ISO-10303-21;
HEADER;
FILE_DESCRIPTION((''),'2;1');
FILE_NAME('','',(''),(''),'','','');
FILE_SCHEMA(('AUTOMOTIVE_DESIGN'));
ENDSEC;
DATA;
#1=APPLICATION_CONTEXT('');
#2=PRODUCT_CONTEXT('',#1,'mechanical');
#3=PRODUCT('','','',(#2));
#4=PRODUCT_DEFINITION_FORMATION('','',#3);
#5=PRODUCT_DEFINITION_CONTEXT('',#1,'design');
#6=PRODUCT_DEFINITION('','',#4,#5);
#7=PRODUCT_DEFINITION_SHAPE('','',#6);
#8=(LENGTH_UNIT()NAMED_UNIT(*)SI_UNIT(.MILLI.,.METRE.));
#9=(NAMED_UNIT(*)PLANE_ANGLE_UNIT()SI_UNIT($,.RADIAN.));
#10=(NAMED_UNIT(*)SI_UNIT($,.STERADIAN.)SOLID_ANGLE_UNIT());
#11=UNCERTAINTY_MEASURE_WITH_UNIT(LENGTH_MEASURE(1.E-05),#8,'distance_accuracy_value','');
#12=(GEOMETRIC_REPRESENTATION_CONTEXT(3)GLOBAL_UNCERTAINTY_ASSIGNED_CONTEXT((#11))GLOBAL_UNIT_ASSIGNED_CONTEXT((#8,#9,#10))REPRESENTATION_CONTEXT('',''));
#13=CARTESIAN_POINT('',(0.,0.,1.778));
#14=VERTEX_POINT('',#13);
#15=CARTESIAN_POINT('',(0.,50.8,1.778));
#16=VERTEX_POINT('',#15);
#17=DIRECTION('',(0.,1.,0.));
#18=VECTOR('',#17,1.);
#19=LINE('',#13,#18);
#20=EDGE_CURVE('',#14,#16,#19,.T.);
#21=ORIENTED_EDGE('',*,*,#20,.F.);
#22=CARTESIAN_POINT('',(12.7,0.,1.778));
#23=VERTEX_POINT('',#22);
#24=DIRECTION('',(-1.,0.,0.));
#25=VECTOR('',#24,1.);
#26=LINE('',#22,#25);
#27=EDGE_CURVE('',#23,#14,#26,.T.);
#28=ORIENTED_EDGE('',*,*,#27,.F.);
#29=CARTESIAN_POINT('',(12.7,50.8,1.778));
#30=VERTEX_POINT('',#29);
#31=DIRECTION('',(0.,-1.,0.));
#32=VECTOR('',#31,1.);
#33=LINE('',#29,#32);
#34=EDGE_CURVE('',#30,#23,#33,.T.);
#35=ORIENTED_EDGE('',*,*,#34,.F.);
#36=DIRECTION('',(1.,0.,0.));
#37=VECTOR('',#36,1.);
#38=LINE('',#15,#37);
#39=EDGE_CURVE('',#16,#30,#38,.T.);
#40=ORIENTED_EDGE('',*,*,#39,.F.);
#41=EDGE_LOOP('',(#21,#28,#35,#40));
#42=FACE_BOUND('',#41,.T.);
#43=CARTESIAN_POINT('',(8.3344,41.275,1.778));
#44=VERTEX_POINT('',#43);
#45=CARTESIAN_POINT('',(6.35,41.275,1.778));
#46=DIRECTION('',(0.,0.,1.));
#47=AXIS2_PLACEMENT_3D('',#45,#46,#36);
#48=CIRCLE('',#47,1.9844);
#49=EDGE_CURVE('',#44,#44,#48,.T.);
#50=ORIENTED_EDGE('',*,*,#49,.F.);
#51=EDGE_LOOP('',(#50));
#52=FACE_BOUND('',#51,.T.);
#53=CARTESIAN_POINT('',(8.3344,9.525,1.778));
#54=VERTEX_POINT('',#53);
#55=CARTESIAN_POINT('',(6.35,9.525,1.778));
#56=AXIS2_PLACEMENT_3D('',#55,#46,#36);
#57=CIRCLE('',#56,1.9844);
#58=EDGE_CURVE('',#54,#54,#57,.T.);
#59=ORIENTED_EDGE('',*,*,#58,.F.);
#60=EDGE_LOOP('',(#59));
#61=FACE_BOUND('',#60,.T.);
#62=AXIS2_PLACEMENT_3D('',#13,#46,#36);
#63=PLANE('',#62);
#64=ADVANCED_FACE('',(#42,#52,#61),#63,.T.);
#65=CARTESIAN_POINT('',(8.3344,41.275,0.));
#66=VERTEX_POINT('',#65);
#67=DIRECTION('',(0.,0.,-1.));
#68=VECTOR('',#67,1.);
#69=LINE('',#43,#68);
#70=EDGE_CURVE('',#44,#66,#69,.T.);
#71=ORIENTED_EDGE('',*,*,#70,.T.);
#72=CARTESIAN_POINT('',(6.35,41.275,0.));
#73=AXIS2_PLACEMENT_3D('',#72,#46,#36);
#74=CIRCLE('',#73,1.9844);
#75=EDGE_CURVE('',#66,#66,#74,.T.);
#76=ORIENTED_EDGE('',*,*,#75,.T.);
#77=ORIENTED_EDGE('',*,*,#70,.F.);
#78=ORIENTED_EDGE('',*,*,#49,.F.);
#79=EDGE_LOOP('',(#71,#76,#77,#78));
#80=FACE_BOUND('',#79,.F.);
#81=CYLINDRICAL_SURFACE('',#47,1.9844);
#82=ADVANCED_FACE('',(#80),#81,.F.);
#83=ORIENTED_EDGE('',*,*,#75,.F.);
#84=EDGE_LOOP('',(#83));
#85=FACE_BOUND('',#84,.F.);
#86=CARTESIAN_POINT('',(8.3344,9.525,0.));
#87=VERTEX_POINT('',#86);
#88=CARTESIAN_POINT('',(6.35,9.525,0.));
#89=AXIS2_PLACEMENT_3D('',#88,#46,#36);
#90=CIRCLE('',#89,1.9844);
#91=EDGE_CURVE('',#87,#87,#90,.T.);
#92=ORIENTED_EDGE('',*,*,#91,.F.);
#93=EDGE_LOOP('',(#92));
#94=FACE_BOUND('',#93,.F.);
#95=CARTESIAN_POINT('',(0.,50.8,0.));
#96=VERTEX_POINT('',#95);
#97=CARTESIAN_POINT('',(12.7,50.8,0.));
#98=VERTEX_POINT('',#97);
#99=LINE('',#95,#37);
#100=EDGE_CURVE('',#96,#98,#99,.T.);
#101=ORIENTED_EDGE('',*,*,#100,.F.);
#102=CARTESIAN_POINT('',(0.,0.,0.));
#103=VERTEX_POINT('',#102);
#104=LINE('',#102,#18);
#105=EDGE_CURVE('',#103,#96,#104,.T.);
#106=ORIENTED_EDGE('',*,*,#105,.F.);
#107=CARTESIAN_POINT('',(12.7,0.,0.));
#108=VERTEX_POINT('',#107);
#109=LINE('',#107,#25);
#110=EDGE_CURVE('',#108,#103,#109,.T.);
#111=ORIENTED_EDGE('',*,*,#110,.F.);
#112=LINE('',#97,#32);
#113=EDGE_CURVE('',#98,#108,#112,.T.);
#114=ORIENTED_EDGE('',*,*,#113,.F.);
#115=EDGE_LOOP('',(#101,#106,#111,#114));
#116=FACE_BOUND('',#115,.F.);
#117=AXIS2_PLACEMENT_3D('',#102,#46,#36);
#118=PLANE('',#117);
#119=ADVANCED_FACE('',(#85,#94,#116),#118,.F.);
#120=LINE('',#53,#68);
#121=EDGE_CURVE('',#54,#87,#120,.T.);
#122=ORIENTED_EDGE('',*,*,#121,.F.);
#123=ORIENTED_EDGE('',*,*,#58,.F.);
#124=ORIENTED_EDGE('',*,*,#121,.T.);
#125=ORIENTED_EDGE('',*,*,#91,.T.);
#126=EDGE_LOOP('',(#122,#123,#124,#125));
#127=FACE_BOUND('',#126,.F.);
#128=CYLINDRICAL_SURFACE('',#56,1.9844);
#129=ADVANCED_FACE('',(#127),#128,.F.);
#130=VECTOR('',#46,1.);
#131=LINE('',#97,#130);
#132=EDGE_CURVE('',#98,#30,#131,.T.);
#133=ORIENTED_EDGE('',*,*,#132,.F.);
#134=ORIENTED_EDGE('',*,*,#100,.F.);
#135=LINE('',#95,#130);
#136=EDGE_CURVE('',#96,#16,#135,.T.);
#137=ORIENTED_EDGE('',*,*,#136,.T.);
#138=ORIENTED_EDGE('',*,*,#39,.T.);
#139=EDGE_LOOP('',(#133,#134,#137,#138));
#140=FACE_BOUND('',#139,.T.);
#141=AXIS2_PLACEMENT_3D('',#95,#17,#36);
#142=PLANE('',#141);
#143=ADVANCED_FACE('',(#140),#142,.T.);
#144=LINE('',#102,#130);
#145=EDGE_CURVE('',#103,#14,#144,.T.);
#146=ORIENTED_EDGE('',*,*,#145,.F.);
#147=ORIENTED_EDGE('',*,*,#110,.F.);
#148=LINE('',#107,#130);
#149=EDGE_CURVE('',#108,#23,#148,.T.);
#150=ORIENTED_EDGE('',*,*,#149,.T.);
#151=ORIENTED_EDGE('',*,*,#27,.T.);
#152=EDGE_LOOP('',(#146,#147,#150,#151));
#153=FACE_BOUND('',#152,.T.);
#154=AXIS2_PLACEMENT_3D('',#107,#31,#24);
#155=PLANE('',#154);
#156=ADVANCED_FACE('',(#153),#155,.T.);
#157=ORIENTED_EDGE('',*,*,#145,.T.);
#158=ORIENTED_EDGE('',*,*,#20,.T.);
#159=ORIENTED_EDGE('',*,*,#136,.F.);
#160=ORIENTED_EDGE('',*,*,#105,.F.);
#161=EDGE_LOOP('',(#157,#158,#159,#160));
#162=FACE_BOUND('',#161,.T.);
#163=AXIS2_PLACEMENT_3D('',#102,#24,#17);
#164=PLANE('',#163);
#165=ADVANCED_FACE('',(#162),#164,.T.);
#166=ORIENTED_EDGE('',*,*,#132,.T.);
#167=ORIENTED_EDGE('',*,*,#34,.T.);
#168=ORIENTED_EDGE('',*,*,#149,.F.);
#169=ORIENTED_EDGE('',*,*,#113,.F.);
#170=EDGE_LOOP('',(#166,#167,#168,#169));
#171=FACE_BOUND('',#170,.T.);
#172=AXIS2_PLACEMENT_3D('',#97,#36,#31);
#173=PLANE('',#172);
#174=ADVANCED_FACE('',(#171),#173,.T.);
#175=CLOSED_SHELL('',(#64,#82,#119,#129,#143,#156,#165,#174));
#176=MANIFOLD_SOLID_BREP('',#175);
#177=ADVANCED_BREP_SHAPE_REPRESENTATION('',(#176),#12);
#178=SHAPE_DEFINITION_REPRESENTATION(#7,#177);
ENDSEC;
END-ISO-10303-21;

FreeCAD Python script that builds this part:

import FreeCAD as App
import Part
import Sketcher
Q = App.Units.Quantity

doc = App.newDocument("Part")
body = doc.addObject("PartDesign::Body", "Body")

# Sketch on XY plane
sketch1 = body.newObject("Sketcher::SketchObject", "Sketch")
sketch1.AttachmentSupport = (doc.getObject("XY_Plane"), [""])
sketch1.MapMode = "FlatFace"
sketch1.addGeometry([
    Part.LineSegment(App.Vector(13, 51, 0), App.Vector(0, 51, 0)),
    Part.LineSegment(App.Vector(0, 51, 0), App.Vector(0, 0, 0)),
    Part.LineSegment(App.Vector(0, 0, 0), App.Vector(13, 0, 0)),
    Part.LineSegment(App.Vector(13, 0, 0), App.Vector(13, 51, 0)),
], False)
sketch1.addConstraint([
    Sketcher.Constraint("Coincident", 0, 2, 1, 1),
    Sketcher.Constraint("Coincident", 1, 2, 2, 1),
    Sketcher.Constraint("Coincident", 2, 2, 3, 1),
    Sketcher.Constraint("Coincident", 3, 2, 0, 1),
    Sketcher.Constraint("Horizontal", 0),
    Sketcher.Constraint("Vertical", 1),
    Sketcher.Constraint("Horizontal", 2),
    Sketcher.Constraint("Vertical", 3),
    Sketcher.Constraint("Coincident", 1, 2, -1, 1),
    Sketcher.Constraint("DistanceY", 1, 2, 1, 1, Q("2 in")),
    Sketcher.Constraint("DistanceX", 0, 2, 0, 1, Q("0.5 in")),
])
pad1 = body.newObject("PartDesign::Pad", "Pad")
pad1.Profile = sketch1
pad1.Length = Q("0.07 in")

# Sketch on XY plane
sketch2 = body.newObject("Sketcher::SketchObject", "Sketch001")
sketch2.AttachmentSupport = (doc.getObject("XY_Plane"), [""])
sketch2.MapMode = "FlatFace"
sketch2.AttachmentOffset = App.Placement(App.Vector(0, 0, 0.07 * 25.4), App.Rotation())
sketch2.addGeometry(Part.Circle(App.Vector(6.3, 9.5, 0), App.Vector(0, 0, 1), 2), False)
sketch2.addConstraint([
    Sketcher.Constraint("Diameter", 0, Q("0.156252 in")),
    Sketcher.Constraint("DistanceY", -1, 1, 0, 3, Q("0.375 in")),
    Sketcher.Constraint("DistanceX", -1, 1, 0, 3, Q("0.25 in")),
])
pocket1 = body.newObject("PartDesign::Pocket", "Pocket")
pocket1.Profile = sketch2
pocket1.Type = "ThroughAll"
doc.recompute()

linearpattern = body.newObject("PartDesign::LinearPattern", "LinearPattern")
linearpattern.Originals = [pocket1]
linearpattern.Direction = (doc.getObject("Y_Axis"), [""])
linearpattern.Mode = "offset"
linearpattern.Offset = Q("1.25 in")
linearpattern.Occurrences = 2
body.Tip = linearpattern

doc.recompute()
